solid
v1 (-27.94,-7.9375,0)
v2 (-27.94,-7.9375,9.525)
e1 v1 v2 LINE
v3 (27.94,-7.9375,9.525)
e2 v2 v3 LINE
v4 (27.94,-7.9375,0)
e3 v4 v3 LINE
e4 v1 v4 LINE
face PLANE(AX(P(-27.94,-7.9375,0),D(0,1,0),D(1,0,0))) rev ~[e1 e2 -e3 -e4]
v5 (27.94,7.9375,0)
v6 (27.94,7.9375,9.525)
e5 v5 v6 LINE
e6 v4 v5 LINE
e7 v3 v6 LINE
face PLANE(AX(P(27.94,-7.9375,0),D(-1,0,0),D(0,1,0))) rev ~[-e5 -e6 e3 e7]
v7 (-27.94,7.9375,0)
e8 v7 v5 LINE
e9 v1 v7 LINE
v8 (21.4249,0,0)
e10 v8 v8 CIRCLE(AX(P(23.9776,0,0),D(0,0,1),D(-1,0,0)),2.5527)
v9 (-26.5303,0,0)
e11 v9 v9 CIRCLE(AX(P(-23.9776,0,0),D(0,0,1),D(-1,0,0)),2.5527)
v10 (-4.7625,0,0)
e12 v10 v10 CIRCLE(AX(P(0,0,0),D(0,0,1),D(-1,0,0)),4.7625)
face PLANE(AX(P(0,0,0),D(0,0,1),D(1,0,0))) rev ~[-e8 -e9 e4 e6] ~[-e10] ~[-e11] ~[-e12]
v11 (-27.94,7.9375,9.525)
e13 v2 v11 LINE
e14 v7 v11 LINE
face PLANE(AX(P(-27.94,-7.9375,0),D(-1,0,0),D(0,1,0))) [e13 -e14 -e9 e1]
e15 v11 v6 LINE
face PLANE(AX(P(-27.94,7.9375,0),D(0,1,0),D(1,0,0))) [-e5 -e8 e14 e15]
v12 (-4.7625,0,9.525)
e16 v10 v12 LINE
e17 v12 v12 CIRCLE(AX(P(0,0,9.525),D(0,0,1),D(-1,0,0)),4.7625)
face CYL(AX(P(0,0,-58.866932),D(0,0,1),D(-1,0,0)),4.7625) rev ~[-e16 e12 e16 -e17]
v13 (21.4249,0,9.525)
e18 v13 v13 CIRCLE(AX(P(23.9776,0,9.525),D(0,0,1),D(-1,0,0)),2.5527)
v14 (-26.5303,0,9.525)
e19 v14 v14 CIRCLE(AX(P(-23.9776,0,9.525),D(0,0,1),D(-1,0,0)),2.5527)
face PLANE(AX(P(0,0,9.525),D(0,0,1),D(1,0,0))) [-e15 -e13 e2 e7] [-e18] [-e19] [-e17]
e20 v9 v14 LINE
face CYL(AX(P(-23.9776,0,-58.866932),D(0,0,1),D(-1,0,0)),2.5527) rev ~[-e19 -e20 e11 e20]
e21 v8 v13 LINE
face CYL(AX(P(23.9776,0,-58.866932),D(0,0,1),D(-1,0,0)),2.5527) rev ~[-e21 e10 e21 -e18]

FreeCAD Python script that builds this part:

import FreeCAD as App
import Part
import Sketcher
Q = App.Units.Quantity

doc = App.newDocument("Part")
params = doc.addObject("Spreadsheet::Sheet", "Params")
for row, (alias, value) in enumerate([
    ("sketch1_width", "2.2 in"),
    ("sketch1_height", "0.625 in"),
    ("pad1_length", "0.375 in"),
    ("sketch2_diameter", "0.201 in"),
    ("hole_diameter", "0.201 in"),
    ("sketch3_diameter", "0.375 in"),
    ("hole2_diameter", "0.375 in"),
], start=1):
    params.set(f"A{row}", alias)
    params.set(f"B{row}", "=" + value)
    params.setAlias(f"B{row}", alias)

body = doc.addObject("PartDesign::Body", "Body")

# Sketch on XY plane
sketch1 = body.newObject("Sketcher::SketchObject", "Sketch")
sketch1.AttachmentSupport = (doc.getObject("XY_Plane"), [""])
sketch1.MapMode = "FlatFace"
sketch1.addGeometry([
    Part.LineSegment(App.Vector(-27.94, 7.9375, 0), App.Vector(-27.94, -7.9375, 0)),
    Part.LineSegment(App.Vector(-27.94, -7.9375, 0), App.Vector(27.94, -7.9375, 0)),
    Part.LineSegment(App.Vector(27.94, -7.9375, 0), App.Vector(27.94, 7.9375, 0)),
    Part.LineSegment(App.Vector(27.94, 7.9375, 0), App.Vector(-27.94, 7.9375, 0)),
], False)
sketch1.addConstraint([
    Sketcher.Constraint("Coincident", 0, 2, 1, 1),
    Sketcher.Constraint("Coincident", 1, 2, 2, 1),
    Sketcher.Constraint("Coincident", 2, 2, 3, 1),
    Sketcher.Constraint("Coincident", 3, 2, 0, 1),
    Sketcher.Constraint("Vertical", 0),
    Sketcher.Constraint("Horizontal", 1),
    Sketcher.Constraint("Vertical", 2),
    Sketcher.Constraint("Horizontal", 3),
    Sketcher.Constraint("Symmetric", 0, 2, 2, 2, -1, 1),
    Sketcher.Constraint("DistanceX", 1, 1, 1, 2, Q("2.2 in")),
    Sketcher.Constraint("DistanceY", 0, 2, 0, 1, Q("0.625 in")),
])
sketch1.setExpression("Constraints[9]", "Params.sketch1_width")
sketch1.setExpression("Constraints[10]", "Params.sketch1_height")
pad1 = body.newObject("PartDesign::Pad", "Pad")
pad1.Profile = sketch1
pad1.setExpression("Length", "Params.pad1_length")

# Sketch on XY plane
sketch2 = body.newObject("Sketcher::SketchObject", "Sketch001")
sketch2.AttachmentSupport = (doc.getObject("XY_Plane"), [""])
sketch2.MapMode = "FlatFace"
sketch2.addGeometry([
    Part.Circle(App.Vector(-23.9776, 0, 0), App.Vector(0, 0, 1), 2.5527),
    Part.Circle(App.Vector(23.9776, 0, 0), App.Vector(0, 0, 1), 2.5527),
], False)
sketch2.addConstraint([
    Sketcher.Constraint("Equal", 0, 1),
    Sketcher.Constraint("Symmetric", 0, 3, 1, 3, -1, 1),
    Sketcher.Constraint("PointOnObject", 0, 3, -1),
    Sketcher.Constraint("Diameter", 0, Q("0.201 in")),
    Sketcher.Constraint("DistanceX", 0, 3, -1, 1, Q("0.944 in")),
])
sketch2.setExpression("Constraints[3]", "Params.sketch2_diameter")
doc.recompute()
hole = body.newObject("PartDesign::Hole", "Hole")
hole.Profile = sketch2
hole.ThreadType = "None"
hole.setExpression("Diameter", "Params.hole_diameter")
hole.DepthType = "ThroughAll"
hole.Reversed = True

# Sketch on XY plane
sketch3 = body.newObject("Sketcher::SketchObject", "Sketch002")
sketch3.AttachmentSupport = (doc.getObject("XY_Plane"), [""])
sketch3.MapMode = "FlatFace"
sketch3.addGeometry(Part.Circle(App.Vector(0, 0, 0), App.Vector(0, 0, 1), 4.7625), False)
sketch3.addConstraint([
    Sketcher.Constraint("Coincident", 0, 3, -1, 1),
    Sketcher.Constraint("Diameter", 0, Q("0.375 in")),
])
sketch3.setExpression("Constraints[1]", "Params.sketch3_diameter")
doc.recompute()
hole2 = body.newObject("PartDesign::Hole", "Hole001")
hole2.Profile = sketch3
hole2.ThreadType = "None"
hole2.setExpression("Diameter", "Params.hole2_diameter")
hole2.DepthType = "ThroughAll"
hole2.Reversed = True

doc.recompute()
